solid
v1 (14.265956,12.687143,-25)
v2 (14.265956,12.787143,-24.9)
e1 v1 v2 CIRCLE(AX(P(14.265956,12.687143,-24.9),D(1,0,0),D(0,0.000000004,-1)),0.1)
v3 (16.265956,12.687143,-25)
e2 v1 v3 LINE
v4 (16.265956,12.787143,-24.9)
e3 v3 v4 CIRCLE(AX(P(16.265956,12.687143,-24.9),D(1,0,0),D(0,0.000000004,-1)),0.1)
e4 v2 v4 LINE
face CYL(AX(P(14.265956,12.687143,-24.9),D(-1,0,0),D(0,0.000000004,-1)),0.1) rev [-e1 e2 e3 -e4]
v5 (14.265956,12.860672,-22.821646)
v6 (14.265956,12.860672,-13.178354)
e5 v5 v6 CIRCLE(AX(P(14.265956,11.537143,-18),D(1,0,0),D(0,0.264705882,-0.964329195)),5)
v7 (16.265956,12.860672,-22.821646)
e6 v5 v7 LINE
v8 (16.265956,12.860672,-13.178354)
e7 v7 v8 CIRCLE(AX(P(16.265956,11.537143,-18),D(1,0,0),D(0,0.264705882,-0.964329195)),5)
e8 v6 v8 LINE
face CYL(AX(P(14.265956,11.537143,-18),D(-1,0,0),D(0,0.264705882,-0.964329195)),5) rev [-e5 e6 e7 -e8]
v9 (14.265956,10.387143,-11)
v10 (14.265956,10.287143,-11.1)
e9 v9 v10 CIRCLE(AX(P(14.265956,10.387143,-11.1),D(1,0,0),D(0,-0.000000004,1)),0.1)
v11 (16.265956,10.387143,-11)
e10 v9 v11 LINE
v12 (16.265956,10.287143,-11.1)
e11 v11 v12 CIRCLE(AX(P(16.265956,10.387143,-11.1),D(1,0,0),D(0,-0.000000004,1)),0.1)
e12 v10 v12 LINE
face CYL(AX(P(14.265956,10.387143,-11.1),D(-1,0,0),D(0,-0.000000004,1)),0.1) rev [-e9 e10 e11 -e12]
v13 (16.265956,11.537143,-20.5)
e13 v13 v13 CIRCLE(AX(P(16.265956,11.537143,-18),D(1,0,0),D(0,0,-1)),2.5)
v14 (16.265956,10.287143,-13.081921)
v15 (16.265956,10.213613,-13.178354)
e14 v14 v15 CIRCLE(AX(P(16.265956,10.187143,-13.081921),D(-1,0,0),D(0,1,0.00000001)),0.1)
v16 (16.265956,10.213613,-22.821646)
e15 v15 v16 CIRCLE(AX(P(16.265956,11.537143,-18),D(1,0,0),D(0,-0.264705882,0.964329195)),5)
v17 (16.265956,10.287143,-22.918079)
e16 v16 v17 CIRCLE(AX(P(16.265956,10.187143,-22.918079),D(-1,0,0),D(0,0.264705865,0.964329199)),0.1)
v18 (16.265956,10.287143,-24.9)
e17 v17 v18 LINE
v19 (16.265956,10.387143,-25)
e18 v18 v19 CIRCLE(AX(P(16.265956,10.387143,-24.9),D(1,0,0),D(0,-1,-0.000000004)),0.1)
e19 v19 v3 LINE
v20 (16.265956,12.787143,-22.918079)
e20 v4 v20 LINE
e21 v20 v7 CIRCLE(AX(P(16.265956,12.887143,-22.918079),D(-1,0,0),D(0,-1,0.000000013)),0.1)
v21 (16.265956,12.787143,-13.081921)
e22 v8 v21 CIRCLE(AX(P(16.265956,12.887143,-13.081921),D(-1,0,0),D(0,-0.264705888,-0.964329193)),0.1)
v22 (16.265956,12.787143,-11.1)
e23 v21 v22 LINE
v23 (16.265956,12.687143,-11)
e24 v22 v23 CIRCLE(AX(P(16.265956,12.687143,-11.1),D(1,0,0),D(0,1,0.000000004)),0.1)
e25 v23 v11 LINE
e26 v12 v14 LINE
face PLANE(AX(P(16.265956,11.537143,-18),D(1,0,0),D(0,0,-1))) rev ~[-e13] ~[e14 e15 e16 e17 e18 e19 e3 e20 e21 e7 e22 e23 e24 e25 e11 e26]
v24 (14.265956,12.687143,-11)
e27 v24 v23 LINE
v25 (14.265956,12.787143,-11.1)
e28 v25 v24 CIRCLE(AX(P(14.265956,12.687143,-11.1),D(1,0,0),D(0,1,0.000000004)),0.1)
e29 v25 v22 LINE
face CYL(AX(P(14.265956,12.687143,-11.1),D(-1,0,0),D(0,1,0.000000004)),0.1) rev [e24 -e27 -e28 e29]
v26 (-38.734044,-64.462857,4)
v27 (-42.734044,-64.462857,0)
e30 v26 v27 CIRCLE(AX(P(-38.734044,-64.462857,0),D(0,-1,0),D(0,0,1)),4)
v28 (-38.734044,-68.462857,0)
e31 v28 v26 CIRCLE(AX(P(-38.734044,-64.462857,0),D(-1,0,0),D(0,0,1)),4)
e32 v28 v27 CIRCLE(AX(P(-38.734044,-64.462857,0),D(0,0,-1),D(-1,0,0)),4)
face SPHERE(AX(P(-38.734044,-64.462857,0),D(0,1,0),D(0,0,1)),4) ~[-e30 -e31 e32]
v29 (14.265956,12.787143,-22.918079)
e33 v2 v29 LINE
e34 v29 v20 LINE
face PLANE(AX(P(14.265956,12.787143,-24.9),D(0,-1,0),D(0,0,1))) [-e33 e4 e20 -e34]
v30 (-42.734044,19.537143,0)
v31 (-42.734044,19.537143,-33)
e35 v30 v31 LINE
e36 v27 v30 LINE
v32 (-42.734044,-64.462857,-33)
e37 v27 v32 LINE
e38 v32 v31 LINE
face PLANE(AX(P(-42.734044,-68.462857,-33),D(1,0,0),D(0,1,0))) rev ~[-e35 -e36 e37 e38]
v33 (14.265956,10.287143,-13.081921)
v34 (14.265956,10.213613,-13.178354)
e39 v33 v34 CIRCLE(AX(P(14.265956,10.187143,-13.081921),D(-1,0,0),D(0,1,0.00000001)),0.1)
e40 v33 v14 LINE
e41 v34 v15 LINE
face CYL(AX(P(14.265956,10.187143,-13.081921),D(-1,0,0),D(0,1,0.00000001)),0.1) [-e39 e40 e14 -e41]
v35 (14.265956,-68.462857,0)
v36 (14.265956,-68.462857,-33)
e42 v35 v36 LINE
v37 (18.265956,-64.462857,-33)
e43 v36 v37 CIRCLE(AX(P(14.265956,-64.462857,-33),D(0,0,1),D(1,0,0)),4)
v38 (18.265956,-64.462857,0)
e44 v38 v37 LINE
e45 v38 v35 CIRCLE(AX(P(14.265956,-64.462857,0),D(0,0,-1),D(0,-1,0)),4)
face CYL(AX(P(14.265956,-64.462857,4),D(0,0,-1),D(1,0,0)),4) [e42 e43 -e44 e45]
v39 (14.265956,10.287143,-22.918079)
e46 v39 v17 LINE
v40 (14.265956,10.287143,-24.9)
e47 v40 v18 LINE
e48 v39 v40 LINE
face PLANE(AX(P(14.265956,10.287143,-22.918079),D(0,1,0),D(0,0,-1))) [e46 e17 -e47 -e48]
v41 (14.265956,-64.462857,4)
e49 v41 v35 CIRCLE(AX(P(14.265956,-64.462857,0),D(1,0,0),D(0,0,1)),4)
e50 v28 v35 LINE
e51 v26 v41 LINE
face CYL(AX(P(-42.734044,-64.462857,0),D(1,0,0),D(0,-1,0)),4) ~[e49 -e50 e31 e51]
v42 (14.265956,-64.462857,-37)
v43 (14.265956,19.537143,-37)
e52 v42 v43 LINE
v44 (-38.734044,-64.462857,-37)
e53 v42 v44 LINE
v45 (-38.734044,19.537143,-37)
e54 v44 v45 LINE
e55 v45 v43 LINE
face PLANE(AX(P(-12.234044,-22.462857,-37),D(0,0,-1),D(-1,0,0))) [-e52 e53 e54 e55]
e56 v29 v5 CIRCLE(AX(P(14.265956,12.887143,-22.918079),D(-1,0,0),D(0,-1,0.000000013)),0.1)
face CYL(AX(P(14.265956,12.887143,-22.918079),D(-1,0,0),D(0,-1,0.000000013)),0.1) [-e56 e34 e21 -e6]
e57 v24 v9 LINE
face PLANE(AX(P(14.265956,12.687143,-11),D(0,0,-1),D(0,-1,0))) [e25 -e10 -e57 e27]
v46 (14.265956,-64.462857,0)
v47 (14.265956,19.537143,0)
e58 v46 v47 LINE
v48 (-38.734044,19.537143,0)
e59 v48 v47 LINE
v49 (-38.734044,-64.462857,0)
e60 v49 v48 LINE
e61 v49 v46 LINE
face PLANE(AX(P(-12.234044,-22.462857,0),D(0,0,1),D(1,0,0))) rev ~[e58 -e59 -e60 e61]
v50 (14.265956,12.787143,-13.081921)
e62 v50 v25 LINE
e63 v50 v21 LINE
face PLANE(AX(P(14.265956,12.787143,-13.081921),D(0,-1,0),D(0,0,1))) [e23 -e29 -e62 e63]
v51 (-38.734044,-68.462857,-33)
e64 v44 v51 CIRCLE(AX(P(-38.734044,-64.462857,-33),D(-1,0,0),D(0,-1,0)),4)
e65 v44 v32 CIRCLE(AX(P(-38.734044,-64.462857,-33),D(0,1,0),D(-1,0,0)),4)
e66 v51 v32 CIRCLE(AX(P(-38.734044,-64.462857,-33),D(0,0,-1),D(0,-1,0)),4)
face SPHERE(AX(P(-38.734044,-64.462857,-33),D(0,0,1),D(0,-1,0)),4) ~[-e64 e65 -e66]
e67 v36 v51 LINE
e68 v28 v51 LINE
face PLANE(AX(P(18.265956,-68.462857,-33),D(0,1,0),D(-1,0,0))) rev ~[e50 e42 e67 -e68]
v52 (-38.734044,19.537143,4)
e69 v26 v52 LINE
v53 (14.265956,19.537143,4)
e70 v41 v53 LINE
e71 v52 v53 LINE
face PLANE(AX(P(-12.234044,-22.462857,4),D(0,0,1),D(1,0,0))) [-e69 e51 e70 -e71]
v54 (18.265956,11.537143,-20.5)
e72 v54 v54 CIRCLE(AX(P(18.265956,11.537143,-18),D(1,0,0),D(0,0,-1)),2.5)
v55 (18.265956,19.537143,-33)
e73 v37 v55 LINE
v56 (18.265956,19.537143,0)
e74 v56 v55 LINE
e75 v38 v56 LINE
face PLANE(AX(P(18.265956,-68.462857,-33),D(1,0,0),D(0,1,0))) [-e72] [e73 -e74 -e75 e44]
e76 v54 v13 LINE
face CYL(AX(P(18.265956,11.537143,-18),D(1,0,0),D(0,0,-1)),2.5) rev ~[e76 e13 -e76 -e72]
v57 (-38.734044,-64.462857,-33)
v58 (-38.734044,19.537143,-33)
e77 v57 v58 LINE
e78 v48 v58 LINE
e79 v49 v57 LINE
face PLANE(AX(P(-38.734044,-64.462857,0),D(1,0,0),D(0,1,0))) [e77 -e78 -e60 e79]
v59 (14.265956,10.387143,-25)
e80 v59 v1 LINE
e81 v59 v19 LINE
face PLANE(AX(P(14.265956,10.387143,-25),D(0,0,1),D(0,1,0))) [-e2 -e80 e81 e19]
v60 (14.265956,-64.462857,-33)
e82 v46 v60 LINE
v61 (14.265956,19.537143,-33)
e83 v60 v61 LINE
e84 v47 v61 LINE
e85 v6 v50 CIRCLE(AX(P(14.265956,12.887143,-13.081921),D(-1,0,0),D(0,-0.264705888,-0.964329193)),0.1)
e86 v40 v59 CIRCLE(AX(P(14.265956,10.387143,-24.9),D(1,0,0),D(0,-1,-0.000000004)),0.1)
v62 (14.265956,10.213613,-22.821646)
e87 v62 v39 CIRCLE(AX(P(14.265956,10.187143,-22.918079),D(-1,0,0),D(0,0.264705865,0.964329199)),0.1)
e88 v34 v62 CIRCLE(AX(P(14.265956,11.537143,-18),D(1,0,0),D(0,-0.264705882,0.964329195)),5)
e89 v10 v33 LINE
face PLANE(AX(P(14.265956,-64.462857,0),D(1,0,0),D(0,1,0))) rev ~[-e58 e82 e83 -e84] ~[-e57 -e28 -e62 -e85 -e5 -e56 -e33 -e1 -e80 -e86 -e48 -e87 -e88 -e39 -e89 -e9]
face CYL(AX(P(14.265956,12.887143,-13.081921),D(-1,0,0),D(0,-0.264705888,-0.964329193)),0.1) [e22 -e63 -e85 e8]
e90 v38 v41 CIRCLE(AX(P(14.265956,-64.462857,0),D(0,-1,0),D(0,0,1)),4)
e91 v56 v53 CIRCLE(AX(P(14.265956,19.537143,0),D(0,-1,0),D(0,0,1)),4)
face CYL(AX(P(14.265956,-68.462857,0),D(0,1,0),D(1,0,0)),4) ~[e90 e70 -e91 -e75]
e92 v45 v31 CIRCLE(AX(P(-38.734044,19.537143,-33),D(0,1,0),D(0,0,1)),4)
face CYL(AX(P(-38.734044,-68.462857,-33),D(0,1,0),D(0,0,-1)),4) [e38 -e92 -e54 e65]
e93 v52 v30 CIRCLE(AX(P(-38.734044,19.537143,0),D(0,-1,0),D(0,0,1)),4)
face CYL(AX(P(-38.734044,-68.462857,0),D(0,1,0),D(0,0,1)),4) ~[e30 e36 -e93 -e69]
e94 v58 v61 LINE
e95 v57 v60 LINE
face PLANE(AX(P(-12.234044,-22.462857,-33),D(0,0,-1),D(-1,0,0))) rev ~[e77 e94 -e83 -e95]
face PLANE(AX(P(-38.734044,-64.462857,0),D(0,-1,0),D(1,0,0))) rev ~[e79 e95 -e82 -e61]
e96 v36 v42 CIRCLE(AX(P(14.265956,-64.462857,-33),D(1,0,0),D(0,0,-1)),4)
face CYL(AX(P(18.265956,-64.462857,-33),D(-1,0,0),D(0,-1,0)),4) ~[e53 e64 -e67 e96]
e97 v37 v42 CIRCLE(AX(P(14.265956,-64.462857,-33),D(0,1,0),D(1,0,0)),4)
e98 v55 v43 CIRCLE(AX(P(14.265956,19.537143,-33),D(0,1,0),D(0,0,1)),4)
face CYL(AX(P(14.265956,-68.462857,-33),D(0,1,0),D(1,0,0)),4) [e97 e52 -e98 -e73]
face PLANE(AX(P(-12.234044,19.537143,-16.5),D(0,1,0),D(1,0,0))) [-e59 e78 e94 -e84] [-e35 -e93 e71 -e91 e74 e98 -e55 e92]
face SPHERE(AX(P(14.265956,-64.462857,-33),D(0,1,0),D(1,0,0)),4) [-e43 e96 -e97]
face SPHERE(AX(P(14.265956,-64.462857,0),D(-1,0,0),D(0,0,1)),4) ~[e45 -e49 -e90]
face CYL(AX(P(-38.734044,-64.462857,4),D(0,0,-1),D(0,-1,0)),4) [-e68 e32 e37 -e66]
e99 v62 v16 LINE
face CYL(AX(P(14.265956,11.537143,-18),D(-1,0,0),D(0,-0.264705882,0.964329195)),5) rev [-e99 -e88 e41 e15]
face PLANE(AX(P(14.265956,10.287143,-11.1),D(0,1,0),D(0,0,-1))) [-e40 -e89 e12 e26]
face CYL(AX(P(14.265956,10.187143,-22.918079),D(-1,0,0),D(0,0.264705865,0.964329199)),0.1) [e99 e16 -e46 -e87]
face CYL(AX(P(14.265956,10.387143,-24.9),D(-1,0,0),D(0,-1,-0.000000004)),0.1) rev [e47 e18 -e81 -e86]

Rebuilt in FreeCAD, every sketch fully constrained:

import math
import FreeCAD as App
import Part
import Sketcher

V = App.Vector
Q = App.Units.Quantity


def edges_at(feature, points):
    """Names of the edges that pass closest to the given points."""
    edges = feature.Shape.Edges
    near = lambda p: min(range(len(edges)), key=lambda i: edges[i].distToShape(Part.Vertex(*p))[0])
    return sorted({f"Edge{near(p) + 1}" for p in points})


def add_polygon(sketch, points):
    """Adds a closed chain of lines whose ends are joined by coincident constraints."""
    first, n = sketch.GeometryCount, len(points)
    for a, b in zip(points, points[1:] + points[:1]):
        sketch.addGeometry(Part.LineSegment(App.Vector(*a, 0), App.Vector(*b, 0)), False)
    for i in range(n):
        sketch.addConstraint(Sketcher.Constraint("Coincident", first + i, 2, first + (i + 1) % n, 1))

doc = App.newDocument("Part")
body = doc.addObject("PartDesign::Body", "Body")

# Sketch on XY plane
sketch1 = doc.addObject("Sketcher::SketchObject", "Sketch")
body.addObject(sketch1)
sketch1.AttachmentSupport = (doc.XY_Plane, [""])
sketch1.MapMode = "FlatFace"
add_polygon(sketch1, [(-43, 24), (-43, -68), (18, -68), (18, 24)])  # lines 0-3
add_polygon(sketch1, [(14, -64), (-39, -64), (-39, 20), (14, 20)])  # lines 4-7
sketch1.addConstraint([
    Sketcher.Constraint("Vertical", 0),
    Sketcher.Constraint("Horizontal", 1),
    Sketcher.Constraint("Vertical", 2),
    Sketcher.Constraint("Horizontal", 3),
    Sketcher.Constraint("Horizontal", 4),
    Sketcher.Constraint("Vertical", 5),
    Sketcher.Constraint("Horizontal", 6),
    Sketcher.Constraint("Vertical", 7),
    Sketcher.Constraint("DistanceX", 1, 1, 1, 2, Q("61 mm")),
    Sketcher.Constraint("DistanceX", 4, 2, 4, 1, Q("53 mm")),
    Sketcher.Constraint("DistanceY", 0, 2, 0, 1, Q("92 mm")),
    Sketcher.Constraint("DistanceY", 5, 1, 5, 2, Q("84 mm")),
    Sketcher.Constraint("DistanceX", 0, 2, 4, 2, Q("4 mm")),
    Sketcher.Constraint("DistanceY", 0, 2, 4, 2, Q("4 mm")),
    Sketcher.Constraint("DistanceX", 0, 2, -1, 1, Q("42.734044 mm")),
    Sketcher.Constraint("DistanceY", 0, 2, -1, 1, Q("68.462857 mm")),
])
pad1 = doc.addObject("PartDesign::Pad", "Pad")
body.addObject(pad1)
pad1.Profile = sketch1
pad1.Length = 33
pad1.Reversed = True

# Sketch on XY plane
sketch2 = doc.addObject("Sketcher::SketchObject", "Sketch001")
body.addObject(sketch2)
sketch2.AttachmentSupport = (doc.XY_Plane, [""])
sketch2.MapMode = "FlatFace"
add_polygon(sketch2, [(-43, 24), (-43, -68), (18, -68), (18, 24)])  # lines 0-3
sketch2.addConstraint([
    Sketcher.Constraint("Vertical", 0),
    Sketcher.Constraint("Horizontal", 1),
    Sketcher.Constraint("Vertical", 2),
    Sketcher.Constraint("Horizontal", 3),
    Sketcher.Constraint("DistanceX", 1, 1, 1, 2, Q("61 mm")),
    Sketcher.Constraint("DistanceY", 0, 2, 0, 1, Q("92 mm")),
    Sketcher.Constraint("DistanceX", 0, 2, -1, 1, Q("42.734044 mm")),
    Sketcher.Constraint("DistanceY", 0, 2, -1, 1, Q("68.462857 mm")),
])
pad2 = doc.addObject("PartDesign::Pad", "Pad001")
body.addObject(pad2)
pad2.Profile = sketch2
pad2.Length = 4

# Sketch on YZ plane
sketch3 = doc.addObject("Sketcher::SketchObject", "Sketch002")
body.addObject(sketch3)
sketch3.AttachmentSupport = (doc.YZ_Plane, [""])
sketch3.MapMode = "FlatFace"
sketch3.AttachmentOffset = App.Placement(V(0, 0, 18.265956), App.Rotation())
sketch3.addGeometry(Part.Circle(V(11.5, -18, 0), V(0, 0, 1), 2.5), False)
sketch3.addConstraint([
    Sketcher.Constraint("Diameter", 0, Q("5 mm")),
    Sketcher.Constraint("DistanceY", 0, 3, -1, 1, Q("18 mm")),
    Sketcher.Constraint("DistanceX", -1, 1, 0, 3, Q("11.537143 mm")),
])
pocket1 = doc.addObject("PartDesign::Pocket", "Pocket")
body.addObject(pocket1)
pocket1.Profile = sketch3
pocket1.Length = 4

# Sketch on YZ plane
sketch4 = doc.addObject("Sketcher::SketchObject", "Sketch003")
body.addObject(sketch4)
sketch4.AttachmentSupport = (doc.YZ_Plane, [""])
sketch4.MapMode = "FlatFace"
sketch4.AttachmentOffset = App.Placement(V(0, 0, 14.265956), App.Rotation())
sketch4.addGeometry([
    Part.LineSegment(V(10.29, -13.08, 0), V(10.29, -11.1, 0)),  # 0
    Part.ArcOfCircle(Part.Circle(V(10.39, -11.1, 0), V(0, 0, 1), 0.1), math.radians(90), math.radians(180)),  # 1
    Part.LineSegment(V(10.39, -11, 0), V(12.69, -11, 0)),  # 2
    Part.ArcOfCircle(Part.Circle(V(12.69, -11.1, 0), V(0, 0, 1), 0.1), math.radians(0), math.radians(90)),  # 3
    Part.LineSegment(V(12.79, -11.1, 0), V(12.79, -13.08, 0)),  # 4
    Part.ArcOfCircle(Part.Circle(V(12.89, -13.08, 0), V(0, 0, 1), 0.1), math.radians(-180), math.radians(-105)),  # 5
    Part.ArcOfCircle(Part.Circle(V(11.54, -18, 0), V(0, 0, 1), 5), math.radians(-75), math.radians(75)),  # 6
    Part.ArcOfCircle(Part.Circle(V(12.89, -22.92, 0), V(0, 0, 1), 0.1), math.radians(105), math.radians(180)),  # 7
    Part.LineSegment(V(12.79, -22.92, 0), V(12.79, -24.9, 0)),  # 8
    Part.ArcOfCircle(Part.Circle(V(12.69, -24.9, 0), V(0, 0, 1), 0.1), math.radians(-90), math.radians(0)),  # 9
    Part.LineSegment(V(12.69, -25, 0), V(10.39, -25, 0)),  # 10
    Part.ArcOfCircle(Part.Circle(V(10.39, -24.9, 0), V(0, 0, 1), 0.1), math.radians(180), math.radians(270)),  # 11
    Part.LineSegment(V(10.29, -24.9, 0), V(10.29, -22.92, 0)),  # 12
    Part.ArcOfCircle(Part.Circle(V(10.19, -22.92, 0), V(0, 0, 1), 0.1), math.radians(0), math.radians(75)),  # 13
    Part.ArcOfCircle(Part.Circle(V(11.54, -18, 0), V(0, 0, 1), 5), math.radians(105), math.radians(255)),  # 14
    Part.ArcOfCircle(Part.Circle(V(10.19, -13.08, 0), V(0, 0, 1), 0.1), math.radians(-75), math.radians(0)),  # 15
], False)
sketch4.addConstraint([
    Sketcher.Constraint("Tangent", 0, 2, 1, 2),
    Sketcher.Constraint("Tangent", 1, 1, 2, 1),
    Sketcher.Constraint("Tangent", 2, 2, 3, 2),
    Sketcher.Constraint("Tangent", 3, 1, 4, 1),
    Sketcher.Constraint("Tangent", 4, 2, 5, 1),
    Sketcher.Constraint("Tangent", 5, 2, 6, 2),
    Sketcher.Constraint("Tangent", 6, 1, 7, 1),
    Sketcher.Constraint("Tangent", 7, 2, 8, 1),
    Sketcher.Constraint("Tangent", 8, 2, 9, 2),
    Sketcher.Constraint("Tangent", 9, 1, 10, 1),
    Sketcher.Constraint("Tangent", 10, 2, 11, 2),
    Sketcher.Constraint("Tangent", 11, 1, 12, 1),
    Sketcher.Constraint("Tangent", 12, 2, 13, 1),
    Sketcher.Constraint("Tangent", 13, 2, 14, 2),
    Sketcher.Constraint("Tangent", 14, 1, 15, 1),
    Sketcher.Constraint("Tangent", 15, 2, 0, 1),
    Sketcher.Constraint("Vertical", 0),
    Sketcher.Constraint("Horizontal", 2),
    Sketcher.Constraint("Vertical", 4),
    Sketcher.Constraint("Vertical", 8),
    Sketcher.Constraint("Horizontal", 10),
    Sketcher.Constraint("Vertical", 12),
    Sketcher.Constraint("Coincident", 14, 3, 6, 3),
    Sketcher.Constraint("Equal", 1, 3),
    Sketcher.Constraint("Equal", 3, 5),
    Sketcher.Constraint("Equal", 5, 7),
    Sketcher.Constraint("Equal", 7, 9),
    Sketcher.Constraint("Equal", 9, 11),
    Sketcher.Constraint("Equal", 11, 13),
    Sketcher.Constraint("Equal", 6, 14),
    Sketcher.Constraint("Equal", 13, 15),
    Sketcher.Constraint("Horizontal", 7, 3, 13, 3),
    Sketcher.Constraint("Horizontal", 5, 3, 15, 3),
    Sketcher.Constraint("Vertical", 5, 3, 7, 3),
    Sketcher.Constraint("Equal", 4, 8),
    Sketcher.Constraint("Radius", 6, Q("5 mm")),
    Sketcher.Constraint("Radius", 1, Q("0.1 mm")),
    Sketcher.Constraint("DistanceX", 2, 1, 2, 2, Q("2.3 mm")),
    Sketcher.Constraint("DistanceY", 6, 3, -1, 1, Q("18 mm")),
    Sketcher.Constraint("DistanceY", 1, 1, -1, 1, Q("11 mm")),
    Sketcher.Constraint("DistanceX", -1, 1, 1, 3, Q("10.387143 mm")),
])
pocket2 = doc.addObject("PartDesign::Pocket", "Pocket001")
body.addObject(pocket2)
pocket2.Profile = sketch4
pocket2.Length = 2
pocket2.Reversed = True

# Sketch on XY plane
sketch5 = doc.addObject("Sketcher::SketchObject", "Sketch004")
body.addObject(sketch5)
sketch5.AttachmentSupport = (doc.XY_Plane, [""])
sketch5.MapMode = "FlatFace"
sketch5.AttachmentOffset = App.Placement(V(0, 0, -33), App.Rotation())
add_polygon(sketch5, [(18, 24), (18, -68), (-43, -68), (-43, 24)])  # lines 0-3
sketch5.addConstraint([
    Sketcher.Constraint("Vertical", 0),
    Sketcher.Constraint("Horizontal", 1),
    Sketcher.Constraint("Vertical", 2),
    Sketcher.Constraint("Horizontal", 3),
    Sketcher.Constraint("DistanceX", 1, 2, 1, 1, Q("61 mm")),
    Sketcher.Constraint("DistanceY", 0, 2, 0, 1, Q("92 mm")),
    Sketcher.Constraint("DistanceX", -1, 1, 0, 2, Q("18.265956 mm")),
    Sketcher.Constraint("DistanceY", 0, 2, -1, 1, Q("68.462857 mm")),
])
pad3 = doc.addObject("PartDesign::Pad", "Pad002")
body.addObject(pad3)
pad3.Profile = sketch5
pad3.Length = 4
pad3.Reversed = True

# Sketch on XZ plane
sketch6 = doc.addObject("Sketcher::SketchObject", "Sketch005")
body.addObject(sketch6)
sketch6.AttachmentSupport = (doc.XZ_Plane, [""])
sketch6.MapMode = "FlatFace"
sketch6.AttachmentOffset = App.Placement(V(0, 0, -23.537143), App.Rotation())
add_polygon(sketch6, [(-43, -37), (-43, 4), (18, 4), (18, -37)])  # lines 0-3
sketch6.addConstraint([
    Sketcher.Constraint("Vertical", 0),
    Sketcher.Constraint("Horizontal", 1),
    Sketcher.Constraint("Vertical", 2),
    Sketcher.Constraint("Horizontal", 3),
    Sketcher.Constraint("DistanceX", 1, 1, 1, 2, Q("61 mm")),
    Sketcher.Constraint("DistanceY", 0, 1, 0, 2, Q("41 mm")),
    Sketcher.Constraint("DistanceY", -1, 1, 0, 2, Q("4 mm")),
    Sketcher.Constraint("DistanceX", 0, 2, -1, 1, Q("42.734044 mm")),
])
pocket3 = doc.addObject("PartDesign::Pocket", "Pocket002")
body.addObject(pocket3)
pocket3.Profile = sketch6
pocket3.Length = 4
pocket3.Reversed = True
doc.recompute()

fillet = doc.addObject("PartDesign::Fillet", "Fillet")
body.addObject(fillet)
fillet.Base = (pocket3, edges_at(pocket3, [
    (18.266, -24.463, -37),
    (-42.734, -24.463, 4),
    (-12.234, -68.463, 4),
    (18.266, -24.463, 4),
    (18.266, -68.463, -16.5),
    (-42.734, -68.463, -16.5),
    (-12.234, -68.463, -37),
    (-42.734, -24.463, -37),
]))
fillet.Radius = 4

doc.recompute()
